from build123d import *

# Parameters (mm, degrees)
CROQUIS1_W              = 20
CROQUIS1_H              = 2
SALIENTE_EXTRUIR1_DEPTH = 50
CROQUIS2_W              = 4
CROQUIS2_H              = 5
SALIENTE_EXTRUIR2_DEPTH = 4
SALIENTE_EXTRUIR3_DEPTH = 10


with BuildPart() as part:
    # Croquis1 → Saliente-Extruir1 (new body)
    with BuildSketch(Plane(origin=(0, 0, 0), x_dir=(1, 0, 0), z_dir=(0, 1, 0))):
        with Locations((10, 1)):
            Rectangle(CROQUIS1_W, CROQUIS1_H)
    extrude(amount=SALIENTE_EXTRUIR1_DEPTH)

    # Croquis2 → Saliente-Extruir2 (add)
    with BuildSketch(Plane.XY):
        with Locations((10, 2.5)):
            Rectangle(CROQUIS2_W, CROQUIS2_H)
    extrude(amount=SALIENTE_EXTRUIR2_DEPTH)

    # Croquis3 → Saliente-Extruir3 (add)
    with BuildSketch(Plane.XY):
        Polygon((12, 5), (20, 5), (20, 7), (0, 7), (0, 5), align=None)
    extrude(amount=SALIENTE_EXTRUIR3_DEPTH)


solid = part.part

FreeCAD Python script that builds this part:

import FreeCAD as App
import Part
import Sketcher
from FreeCAD import Vector
Q = App.Units.Quantity

doc = App.newDocument("Part")
body = doc.addObject("PartDesign::Body", "Body")

# Sketch on XZ plane
sketch1 = body.newObject("Sketcher::SketchObject", "Sketch")
sketch1.AttachmentSupport = (doc.getObject("XZ_Plane"), [""])
sketch1.MapMode = "FlatFace"
sketch1.addGeometry(Part.LineSegment(Vector(0, -2, 0), Vector(0, 0, 0)), False)
sketch1.addGeometry(Part.LineSegment(Vector(0, 0, 0), Vector(20, 0, 0)), False)
sketch1.addGeometry(Part.LineSegment(Vector(20, 0, 0), Vector(20, -2, 0)), False)
sketch1.addGeometry(Part.LineSegment(Vector(20, -2, 0), Vector(0, -2, 0)), False)
sketch1.addConstraint(Sketcher.Constraint("Coincident", 0, 2, 1, 1))
sketch1.addConstraint(Sketcher.Constraint("Coincident", 1, 2, 2, 1))
sketch1.addConstraint(Sketcher.Constraint("Coincident", 2, 2, 3, 1))
sketch1.addConstraint(Sketcher.Constraint("Coincident", 3, 2, 0, 1))
sketch1.addConstraint(Sketcher.Constraint("Vertical", 0))
sketch1.addConstraint(Sketcher.Constraint("Horizontal", 1))
sketch1.addConstraint(Sketcher.Constraint("Vertical", 2))
sketch1.addConstraint(Sketcher.Constraint("Horizontal", 3))
sketch1.addConstraint(Sketcher.Constraint("Coincident", 0, 2, -1, 1))
sketch1.addConstraint(Sketcher.Constraint("DistanceX", 1, 1, 1, 2, Q("20 mm")))
sketch1.addConstraint(Sketcher.Constraint("DistanceY", 0, 1, 0, 2, Q("2 mm")))
pad1 = body.newObject("PartDesign::Pad", "Pad")
pad1.Profile = sketch1
pad1.Length = 50
pad1.Reversed = True

# Sketch on XY plane
sketch2 = body.newObject("Sketcher::SketchObject", "Sketch001")
sketch2.AttachmentSupport = (doc.getObject("XY_Plane"), [""])
sketch2.MapMode = "FlatFace"
sketch2.addGeometry(Part.LineSegment(Vector(8, 5, 0), Vector(8, 0, 0)), False)
sketch2.addGeometry(Part.LineSegment(Vector(8, 0, 0), Vector(12, 0, 0)), False)
sketch2.addGeometry(Part.LineSegment(Vector(12, 0, 0), Vector(12, 5, 0)), False)
sketch2.addGeometry(Part.LineSegment(Vector(12, 5, 0), Vector(8, 5, 0)), False)
sketch2.addConstraint(Sketcher.Constraint("Coincident", 0, 2, 1, 1))
sketch2.addConstraint(Sketcher.Constraint("Coincident", 1, 2, 2, 1))
sketch2.addConstraint(Sketcher.Constraint("Coincident", 2, 2, 3, 1))
sketch2.addConstraint(Sketcher.Constraint("Coincident", 3, 2, 0, 1))
sketch2.addConstraint(Sketcher.Constraint("Vertical", 0))
sketch2.addConstraint(Sketcher.Constraint("Horizontal", 1))
sketch2.addConstraint(Sketcher.Constraint("Vertical", 2))
sketch2.addConstraint(Sketcher.Constraint("Horizontal", 3))
sketch2.addConstraint(Sketcher.Constraint("PointOnObject", 0, 2, -1))
sketch2.addConstraint(Sketcher.Constraint("DistanceX", 1, 1, 1, 2, Q("4 mm")))
sketch2.addConstraint(Sketcher.Constraint("DistanceY", 0, 2, 0, 1, Q("5 mm")))
sketch2.addConstraint(Sketcher.Constraint("DistanceX", -1, 1, 0, 2, Q("8 mm")))
pad2 = body.newObject("PartDesign::Pad", "Pad001")
pad2.Profile = sketch2
pad2.Length = 4

# Sketch on XY plane
sketch3 = body.newObject("Sketcher::SketchObject", "Sketch002")
sketch3.AttachmentSupport = (doc.getObject("XY_Plane"), [""])
sketch3.MapMode = "FlatFace"
sketch3.addGeometry(Part.LineSegment(Vector(20, 5, 0), Vector(20, 7, 0)), False)
sketch3.addGeometry(Part.LineSegment(Vector(20, 7, 0), Vector(0, 7, 0)), False)
sketch3.addGeometry(Part.LineSegment(Vector(0, 7, 0), Vector(0, 5, 0)), False)
sketch3.addGeometry(Part.LineSegment(Vector(0, 5, 0), Vector(20, 5, 0)), False)
sketch3.addConstraint(Sketcher.Constraint("Coincident", 0, 2, 1, 1))
sketch3.addConstraint(Sketcher.Constraint("Coincident", 1, 2, 2, 1))
sketch3.addConstraint(Sketcher.Constraint("Coincident", 2, 2, 3, 1))
sketch3.addConstraint(Sketcher.Constraint("Coincident", 3, 2, 0, 1))
sketch3.addConstraint(Sketcher.Constraint("Vertical", 0))
sketch3.addConstraint(Sketcher.Constraint("Horizontal", 1))
sketch3.addConstraint(Sketcher.Constraint("Vertical", 2))
sketch3.addConstraint(Sketcher.Constraint("Horizontal", 3))
sketch3.addConstraint(Sketcher.Constraint("PointOnObject", 1, 2, -2))
sketch3.addConstraint(Sketcher.Constraint("DistanceX", 1, 2, 1, 1, Q("20 mm")))
sketch3.addConstraint(Sketcher.Constraint("DistanceY", 0, 1, 0, 2, Q("2 mm")))
sketch3.addConstraint(Sketcher.Constraint("DistanceY", -1, 1, 0, 2, Q("7 mm")))
pad3 = body.newObject("PartDesign::Pad", "Pad002")
pad3.Profile = sketch3
pad3.Length = 10

doc.recompute()
